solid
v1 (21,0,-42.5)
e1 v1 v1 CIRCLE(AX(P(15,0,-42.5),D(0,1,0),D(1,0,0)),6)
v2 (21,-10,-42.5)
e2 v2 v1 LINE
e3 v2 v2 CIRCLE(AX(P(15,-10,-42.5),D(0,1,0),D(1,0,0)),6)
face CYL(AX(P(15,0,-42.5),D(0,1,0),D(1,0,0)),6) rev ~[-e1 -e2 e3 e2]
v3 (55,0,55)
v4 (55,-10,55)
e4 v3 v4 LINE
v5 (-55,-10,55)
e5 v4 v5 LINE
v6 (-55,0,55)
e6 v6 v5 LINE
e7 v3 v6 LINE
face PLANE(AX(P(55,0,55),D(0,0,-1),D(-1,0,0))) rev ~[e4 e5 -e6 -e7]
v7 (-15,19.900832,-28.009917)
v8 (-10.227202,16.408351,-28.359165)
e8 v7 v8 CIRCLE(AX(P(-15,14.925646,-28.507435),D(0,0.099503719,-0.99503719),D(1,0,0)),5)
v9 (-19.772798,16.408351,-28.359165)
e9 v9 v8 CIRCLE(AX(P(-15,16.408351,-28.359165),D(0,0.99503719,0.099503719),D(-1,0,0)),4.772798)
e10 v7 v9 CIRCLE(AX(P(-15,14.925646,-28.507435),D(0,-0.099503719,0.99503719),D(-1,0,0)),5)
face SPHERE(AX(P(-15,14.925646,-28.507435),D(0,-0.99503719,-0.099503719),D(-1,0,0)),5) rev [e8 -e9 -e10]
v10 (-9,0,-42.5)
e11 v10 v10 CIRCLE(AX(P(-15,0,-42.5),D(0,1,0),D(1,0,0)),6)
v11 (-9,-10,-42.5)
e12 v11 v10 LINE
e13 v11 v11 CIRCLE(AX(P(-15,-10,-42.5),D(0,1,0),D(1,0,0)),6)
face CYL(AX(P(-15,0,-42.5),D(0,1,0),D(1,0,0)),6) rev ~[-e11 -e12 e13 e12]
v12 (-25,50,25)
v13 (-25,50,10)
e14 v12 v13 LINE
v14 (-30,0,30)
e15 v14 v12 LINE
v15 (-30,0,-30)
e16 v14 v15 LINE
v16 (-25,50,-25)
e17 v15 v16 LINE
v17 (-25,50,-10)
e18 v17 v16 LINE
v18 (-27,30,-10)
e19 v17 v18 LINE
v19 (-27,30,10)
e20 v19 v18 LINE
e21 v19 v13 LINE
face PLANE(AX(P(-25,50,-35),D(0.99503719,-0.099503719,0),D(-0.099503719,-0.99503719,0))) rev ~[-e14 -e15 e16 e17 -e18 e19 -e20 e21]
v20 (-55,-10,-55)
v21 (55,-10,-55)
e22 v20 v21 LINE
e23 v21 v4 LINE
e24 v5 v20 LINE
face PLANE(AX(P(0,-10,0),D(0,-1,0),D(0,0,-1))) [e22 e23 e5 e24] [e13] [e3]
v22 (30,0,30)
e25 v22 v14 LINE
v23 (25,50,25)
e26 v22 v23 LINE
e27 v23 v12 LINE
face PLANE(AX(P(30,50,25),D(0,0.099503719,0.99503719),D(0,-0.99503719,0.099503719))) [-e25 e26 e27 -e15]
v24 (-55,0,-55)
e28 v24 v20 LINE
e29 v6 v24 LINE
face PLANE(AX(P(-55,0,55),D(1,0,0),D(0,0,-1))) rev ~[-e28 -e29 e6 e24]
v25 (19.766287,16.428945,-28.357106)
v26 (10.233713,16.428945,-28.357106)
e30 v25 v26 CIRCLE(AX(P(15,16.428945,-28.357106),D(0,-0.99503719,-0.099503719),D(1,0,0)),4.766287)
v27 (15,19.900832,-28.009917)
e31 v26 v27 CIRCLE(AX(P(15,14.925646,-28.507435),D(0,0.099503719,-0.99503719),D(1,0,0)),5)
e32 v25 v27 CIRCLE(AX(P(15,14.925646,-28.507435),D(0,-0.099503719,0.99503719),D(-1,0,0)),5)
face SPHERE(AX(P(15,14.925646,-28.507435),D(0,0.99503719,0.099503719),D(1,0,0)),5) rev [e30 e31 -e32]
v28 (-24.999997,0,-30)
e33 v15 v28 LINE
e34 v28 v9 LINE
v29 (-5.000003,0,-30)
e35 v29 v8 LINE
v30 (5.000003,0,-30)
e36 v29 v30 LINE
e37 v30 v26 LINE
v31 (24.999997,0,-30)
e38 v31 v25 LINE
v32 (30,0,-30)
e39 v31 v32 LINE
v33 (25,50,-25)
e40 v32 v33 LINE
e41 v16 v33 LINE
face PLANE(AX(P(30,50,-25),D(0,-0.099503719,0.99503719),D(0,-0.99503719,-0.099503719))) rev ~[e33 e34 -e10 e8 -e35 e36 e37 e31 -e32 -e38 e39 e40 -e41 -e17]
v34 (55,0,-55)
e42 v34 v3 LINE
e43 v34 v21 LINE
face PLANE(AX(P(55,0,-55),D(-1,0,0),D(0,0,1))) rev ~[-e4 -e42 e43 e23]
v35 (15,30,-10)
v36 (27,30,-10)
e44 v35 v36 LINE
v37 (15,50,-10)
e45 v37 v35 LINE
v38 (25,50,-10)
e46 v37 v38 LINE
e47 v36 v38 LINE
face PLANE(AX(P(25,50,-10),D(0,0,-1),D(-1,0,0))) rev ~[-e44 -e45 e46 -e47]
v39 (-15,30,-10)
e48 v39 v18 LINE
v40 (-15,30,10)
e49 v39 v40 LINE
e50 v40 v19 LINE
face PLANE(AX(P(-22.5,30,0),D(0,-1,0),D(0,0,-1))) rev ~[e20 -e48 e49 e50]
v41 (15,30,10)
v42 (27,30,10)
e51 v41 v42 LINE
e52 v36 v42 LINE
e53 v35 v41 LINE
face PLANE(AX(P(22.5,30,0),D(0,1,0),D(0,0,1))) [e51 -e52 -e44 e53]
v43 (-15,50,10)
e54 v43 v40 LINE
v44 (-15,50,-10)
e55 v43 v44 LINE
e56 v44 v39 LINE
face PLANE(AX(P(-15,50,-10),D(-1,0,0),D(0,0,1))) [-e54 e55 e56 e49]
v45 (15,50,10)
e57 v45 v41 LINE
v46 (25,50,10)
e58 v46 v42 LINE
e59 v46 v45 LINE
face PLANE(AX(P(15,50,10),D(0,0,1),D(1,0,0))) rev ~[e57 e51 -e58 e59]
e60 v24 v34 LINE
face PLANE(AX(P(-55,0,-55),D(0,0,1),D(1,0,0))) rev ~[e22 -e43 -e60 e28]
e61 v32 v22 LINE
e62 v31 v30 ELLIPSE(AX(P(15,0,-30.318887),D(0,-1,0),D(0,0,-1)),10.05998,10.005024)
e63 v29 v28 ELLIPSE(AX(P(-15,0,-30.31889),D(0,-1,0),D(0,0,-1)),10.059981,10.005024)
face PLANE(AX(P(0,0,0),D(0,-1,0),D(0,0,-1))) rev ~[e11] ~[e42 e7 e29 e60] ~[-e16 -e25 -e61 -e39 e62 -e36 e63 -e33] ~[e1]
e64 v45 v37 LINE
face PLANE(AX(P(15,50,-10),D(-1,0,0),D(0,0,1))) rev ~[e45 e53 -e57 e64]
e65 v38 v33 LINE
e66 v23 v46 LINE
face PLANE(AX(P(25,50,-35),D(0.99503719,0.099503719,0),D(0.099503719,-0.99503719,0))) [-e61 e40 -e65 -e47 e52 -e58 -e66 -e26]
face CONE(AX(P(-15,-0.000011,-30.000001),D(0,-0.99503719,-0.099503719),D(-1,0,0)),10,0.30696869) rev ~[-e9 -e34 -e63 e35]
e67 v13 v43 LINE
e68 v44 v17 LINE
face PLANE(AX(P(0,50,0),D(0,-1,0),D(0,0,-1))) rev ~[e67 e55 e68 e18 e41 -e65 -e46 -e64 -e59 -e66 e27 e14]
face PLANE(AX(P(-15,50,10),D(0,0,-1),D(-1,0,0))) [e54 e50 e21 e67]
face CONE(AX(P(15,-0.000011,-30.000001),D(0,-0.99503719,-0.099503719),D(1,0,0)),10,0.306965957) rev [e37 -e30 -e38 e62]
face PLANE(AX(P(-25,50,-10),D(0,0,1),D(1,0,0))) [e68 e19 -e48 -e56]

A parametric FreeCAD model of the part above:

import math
import FreeCAD as App
import Part
import Sketcher
Q = App.Units.Quantity


def add_polygon(sketch, points):
    """Adds a closed chain of lines whose ends are joined by coincident constraints."""
    first, n = sketch.GeometryCount, len(points)
    for a, b in zip(points, points[1:] + points[:1]):
        sketch.addGeometry(Part.LineSegment(App.Vector(*a, 0), App.Vector(*b, 0)), False)
    for i in range(n):
        sketch.addConstraint(Sketcher.Constraint("Coincident", first + i, 2, first + (i + 1) % n, 1))

doc = App.newDocument("Part")
params = doc.addObject("Spreadsheet::Sheet", "Params")
for row, (alias, value) in enumerate([
    ("sketch1_width", "60 mm"),
    ("pad1_length", "50 mm"),
    ("sketch2_width", "50 mm"),
    ("sketch2_height", "5 mm"),
    ("sketch3_width", "50 mm"),
    ("sketch3_height", "5 mm"),
    ("sketch4_width", "5 mm"),
    ("sketch4_height", "50 mm"),
    ("sketch5_width", "5 mm"),
    ("sketch5_height", "50 mm"),
    ("sketch6_width", "15 mm"),
    ("sketch6_height", "20 mm"),
    ("pocket5_length", "20 mm"),
    ("pocket5_length2", "1 mm"),
    ("sketch7_width", "15 mm"),
    ("sketch7_height", "20 mm"),
    ("pocket6_length", "20 mm"),
    ("pocket6_length2", "1 mm"),
    ("sketch8_radius", "5 mm"),
    ("sketch8_width", "10 mm"),
    ("sketch8_height", "20 mm"),
    ("groove_angle", "180 deg"),
    ("sketch9_radius", "5 mm"),
    ("sketch9_width", "10 mm"),
    ("sketch9_height", "20 mm"),
    ("groove2_angle", "180 deg"),
    ("sketch10_width", "110 mm"),
    ("pad2_length", "10 mm"),
    ("sketch11_diameter", "12 mm"),
], start=1):
    params.set(f"A{row}", alias)
    params.set(f"B{row}", "=" + value)
    params.setAlias(f"B{row}", alias)

body = doc.addObject("PartDesign::Body", "Body")

sketch1 = body.newObject("Sketcher::SketchObject", "Sketch")
sketch1.AttachmentSupport = (doc.getObject("XZ_Plane"), [""])
sketch1.MapMode = "FlatFace"
add_polygon(sketch1, [(30, -30), (30, 30), (-30, 30), (-30, -30)])
sketch1.addConstraint(Sketcher.Constraint("Vertical", 0))
sketch1.addConstraint(Sketcher.Constraint("Horizontal", 1))
sketch1.addConstraint(Sketcher.Constraint("Vertical", 2))
sketch1.addConstraint(Sketcher.Constraint("Horizontal", 3))
sketch1.addConstraint(Sketcher.Constraint("Symmetric", 0, 2, 2, 2, -1, 1))
sketch1.addConstraint(Sketcher.Constraint("Equal", 3, 0))
sketch1.addConstraint(Sketcher.Constraint("DistanceX", 1, 2, 1, 1, Q("60 mm")))
sketch1.setExpression("Constraints[10]", "Params.sketch1_width")
pad1 = body.newObject("PartDesign::Pad", "Pad")
pad1.Profile = sketch1
pad1.setExpression("Length", "Params.pad1_length")
pad1.Reversed = True

sketch2 = body.newObject("Sketcher::SketchObject", "Sketch001")
sketch2.AttachmentSupport = (doc.getObject("YZ_Plane"), [""])
sketch2.MapMode = "FlatFace"
sketch2.AttachmentOffset = App.Placement(App.Vector(0, 0, 30), App.Rotation())
add_polygon(sketch2, [(0, -30), (50, -30), (50, -25)])
sketch2.addConstraint(Sketcher.Constraint("Horizontal", 0))
sketch2.addConstraint(Sketcher.Constraint("Vertical", 1))
sketch2.addConstraint(Sketcher.Constraint("PointOnObject", 2, 2, -2))
sketch2.addConstraint(Sketcher.Constraint("DistanceX", 0, 1, 0, 2, Q("50 mm")))
sketch2.addConstraint(Sketcher.Constraint("DistanceY", 1, 1, 1, 2, Q("5 mm")))
sketch2.addConstraint(Sketcher.Constraint("DistanceY", 0, 2, -1, 1, Q("30 mm")))
sketch2.setExpression("Constraints[6]", "Params.sketch2_width")
sketch2.setExpression("Constraints[7]", "Params.sketch2_height")
pocket1 = body.newObject("PartDesign::Pocket", "Pocket")
pocket1.Profile = sketch2
pocket1.Type = "ThroughAll"
pocket1.Midplane = True

sketch3 = body.newObject("Sketcher::SketchObject", "Sketch002")
sketch3.AttachmentSupport = (doc.getObject("YZ_Plane"), [""])
sketch3.MapMode = "FlatFace"
sketch3.AttachmentOffset = App.Placement(App.Vector(0, 0, 30), App.Rotation())
add_polygon(sketch3, [(50, 25), (50, 30), (0, 30)])
sketch3.addConstraint(Sketcher.Constraint("Vertical", 0))
sketch3.addConstraint(Sketcher.Constraint("Horizontal", 1))
sketch3.addConstraint(Sketcher.Constraint("PointOnObject", 1, 2, -2))
sketch3.addConstraint(Sketcher.Constraint("DistanceX", 1, 2, 1, 1, Q("50 mm")))
sketch3.addConstraint(Sketcher.Constraint("DistanceY", 0, 1, 0, 2, Q("5 mm")))
sketch3.addConstraint(Sketcher.Constraint("DistanceY", -1, 1, 0, 2, Q("30 mm")))
sketch3.setExpression("Constraints[6]", "Params.sketch3_width")
sketch3.setExpression("Constraints[7]", "Params.sketch3_height")
pocket2 = body.newObject("PartDesign::Pocket", "Pocket001")
pocket2.Profile = sketch3
pocket2.Type = "ThroughAll"
pocket2.Midplane = True

sketch4 = body.newObject("Sketcher::SketchObject", "Sketch003")
sketch4.AttachmentSupport = (doc.getObject("XY_Plane"), [""])
sketch4.MapMode = "FlatFace"
sketch4.AttachmentOffset = App.Placement(App.Vector(0, 0, -35), App.Rotation())
add_polygon(sketch4, [(-30, 0), (-30, 50), (-25, 50)])
sketch4.addConstraint(Sketcher.Constraint("Vertical", 0))
sketch4.addConstraint(Sketcher.Constraint("Horizontal", 1))
sketch4.addConstraint(Sketcher.Constraint("PointOnObject", 2, 2, -1))
sketch4.addConstraint(Sketcher.Constraint("DistanceX", 1, 1, 1, 2, Q("5 mm")))
sketch4.addConstraint(Sketcher.Constraint("DistanceY", 0, 1, 0, 2, Q("50 mm")))
sketch4.addConstraint(Sketcher.Constraint("DistanceX", 0, 2, -1, 1, Q("30 mm")))
sketch4.setExpression("Constraints[6]", "Params.sketch4_width")
sketch4.setExpression("Constraints[7]", "Params.sketch4_height")
pocket3 = body.newObject("PartDesign::Pocket", "Pocket002")
pocket3.Profile = sketch4
pocket3.Type = "ThroughAll"
pocket3.Midplane = True

sketch5 = body.newObject("Sketcher::SketchObject", "Sketch004")
sketch5.AttachmentSupport = (doc.getObject("XY_Plane"), [""])
sketch5.MapMode = "FlatFace"
sketch5.AttachmentOffset = App.Placement(App.Vector(0, 0, -35), App.Rotation())
add_polygon(sketch5, [(30, 50), (30, 0), (25, 50)])
sketch5.addConstraint(Sketcher.Constraint("Vertical", 0))
sketch5.addConstraint(Sketcher.Constraint("Horizontal", 2))
sketch5.addConstraint(Sketcher.Constraint("PointOnObject", 0, 2, -1))
sketch5.addConstraint(Sketcher.Constraint("DistanceX", 2, 1, 2, 2, Q("5 mm")))
sketch5.addConstraint(Sketcher.Constraint("DistanceY", 0, 2, 0, 1, Q("50 mm")))
sketch5.addConstraint(Sketcher.Constraint("DistanceX", -1, 1, 0, 2, Q("30 mm")))
sketch5.setExpression("Constraints[6]", "Params.sketch5_width")
sketch5.setExpression("Constraints[7]", "Params.sketch5_height")
pocket4 = body.newObject("PartDesign::Pocket", "Pocket003")
pocket4.Profile = sketch5
pocket4.Type = "ThroughAll"
pocket4.Midplane = True

sketch6 = body.newObject("Sketcher::SketchObject", "Sketch005")
sketch6.AttachmentSupport = (doc.getObject("XZ_Plane"), [""])
sketch6.MapMode = "FlatFace"
sketch6.AttachmentOffset = App.Placement(App.Vector(0, 0, -50), App.Rotation())
add_polygon(sketch6, [(15, -10), (15, 10), (30, 10), (30, -10)])
sketch6.addConstraint(Sketcher.Constraint("Vertical", 0))
sketch6.addConstraint(Sketcher.Constraint("Horizontal", 1))
sketch6.addConstraint(Sketcher.Constraint("Vertical", 2))
sketch6.addConstraint(Sketcher.Constraint("Horizontal", 3))
sketch6.addConstraint(Sketcher.Constraint("DistanceX", 1, 1, 1, 2, Q("15 mm")))
sketch6.addConstraint(Sketcher.Constraint("DistanceY", 0, 1, 0, 2, Q("20 mm")))
sketch6.addConstraint(Sketcher.Constraint("DistanceX", -1, 1, 0, 2, Q("15 mm")))
sketch6.addConstraint(Sketcher.Constraint("DistanceY", -1, 1, 0, 2, Q("10 mm")))
sketch6.setExpression("Constraints[8]", "Params.sketch6_width")
sketch6.setExpression("Constraints[9]", "Params.sketch6_height")
pocket5 = body.newObject("PartDesign::Pocket", "Pocket004")
pocket5.Profile = sketch6
pocket5.Type = "TwoLengths"
pocket5.setExpression("Length", "Params.pocket5_length")
pocket5.setExpression("Length2", "Params.pocket5_length2")
pocket5.Reversed = True

sketch7 = body.newObject("Sketcher::SketchObject", "Sketch006")
sketch7.AttachmentSupport = (doc.getObject("XZ_Plane"), [""])
sketch7.MapMode = "FlatFace"
sketch7.AttachmentOffset = App.Placement(App.Vector(0, 0, -50), App.Rotation())
add_polygon(sketch7, [(-15, -10), (-30, -10), (-30, 10), (-15, 10)])
sketch7.addConstraint(Sketcher.Constraint("Horizontal", 0))
sketch7.addConstraint(Sketcher.Constraint("Vertical", 1))
sketch7.addConstraint(Sketcher.Constraint("Horizontal", 2))
sketch7.addConstraint(Sketcher.Constraint("Vertical", 3))
sketch7.addConstraint(Sketcher.Constraint("DistanceX", 0, 2, 0, 1, Q("15 mm")))
sketch7.addConstraint(Sketcher.Constraint("DistanceY", 1, 1, 1, 2, Q("20 mm")))
sketch7.addConstraint(Sketcher.Constraint("DistanceX", 0, 2, -1, 1, Q("30 mm")))
sketch7.addConstraint(Sketcher.Constraint("DistanceY", 0, 2, -1, 1, Q("10 mm")))
sketch7.setExpression("Constraints[8]", "Params.sketch7_width")
sketch7.setExpression("Constraints[9]", "Params.sketch7_height")
pocket6 = body.newObject("PartDesign::Pocket", "Pocket005")
pocket6.Profile = sketch7
pocket6.Type = "TwoLengths"
pocket6.setExpression("Length", "Params.pocket6_length")
pocket6.setExpression("Length2", "Params.pocket6_length2")
pocket6.Reversed = True

sketch8 = body.newObject("Sketcher::SketchObject", "Sketch007")
sketch8.Placement = App.Placement(App.Vector(0, 25, -27.5), App.Rotation(App.Vector(-1, 0, 0), App.Vector(0, 0.99503719, 0.099503719), App.Vector(0, 0.099503719, -0.99503719), "ZXY"))
sketch8.addGeometry(Part.LineSegment(App.Vector(-25, -25.1247, 0), App.Vector(-15, -25.1247, 0)), False)
sketch8.addGeometry(Part.LineSegment(App.Vector(-15, -25.1247, 0), App.Vector(-15, -5.1247, 0)), False)
sketch8.addGeometry(Part.ArcOfCircle(Part.Circle(App.Vector(-15, -10.1246, 0), App.Vector(0, 0, 1), 4.999983), math.radians(90), math.radians(162.412664)), False)
sketch8.addGeometry(Part.LineSegment(App.Vector(-19.7663, -8.6138, 0), App.Vector(-25, -25.1247, 0)), False)
sketch8.addGeometry(Part.LineSegment(App.Vector(-15, -5.1247, 0), App.Vector(-15, -25.1247, 0)), True)
sketch8.addConstraint(Sketcher.Constraint("Coincident", 0, 2, 1, 1))
sketch8.addConstraint(Sketcher.Constraint("Coincident", 1, 2, 2, 1))
sketch8.addConstraint(Sketcher.Constraint("Tangent", 2, 2, 3, 1))
sketch8.addConstraint(Sketcher.Constraint("Coincident", 3, 2, 0, 1))
sketch8.addConstraint(Sketcher.Constraint("Horizontal", 0))
sketch8.addConstraint(Sketcher.Constraint("Vertical", 1))
sketch8.addConstraint(Sketcher.Constraint("Vertical", 4))
sketch8.addConstraint(Sketcher.Constraint("Coincident", 4, 1, 1, 2))
sketch8.addConstraint(Sketcher.Constraint("Horizontal", 3, 2, 4, 2))
sketch8.addConstraint(Sketcher.Constraint("Vertical", 2, 3, 0, 2))
sketch8.addConstraint(Sketcher.Constraint("Radius", 2, Q("5 mm")))
sketch8.addConstraint(Sketcher.Constraint("DistanceX", 0, 1, 0, 2, Q("10 mm")))
sketch8.addConstraint(Sketcher.Constraint("DistanceY", 1, 1, 1, 2, Q("20 mm")))
sketch8.addConstraint(Sketcher.Constraint("DistanceX", 2, 3, -1, 1, Q("15 mm")))
sketch8.addConstraint(Sketcher.Constraint("DistanceY", 2, 3, -1, 1, Q("10.1246 mm")))
sketch8.setExpression("Constraints[10]", "Params.sketch8_radius")
sketch8.setExpression("Constraints[11]", "Params.sketch8_width")
sketch8.setExpression("Constraints[12]", "Params.sketch8_height")
groove = body.newObject("PartDesign::Groove", "Groove")
groove.Profile = sketch8
groove.ReferenceAxis = (sketch8, ["Axis0"])
groove.setExpression("Angle", "Params.groove_angle")

sketch9 = body.newObject("Sketcher::SketchObject", "Sketch008")
sketch9.Placement = App.Placement(App.Vector(0, 25, -27.5), App.Rotation(App.Vector(-1, 0, 0), App.Vector(0, 0.99503719, 0.099503719), App.Vector(0, 0.099503719, -0.99503719), "ZXY"))
sketch9.addGeometry(Part.LineSegment(App.Vector(15, -25.1247, 0), App.Vector(25, -25.1247, 0)), False)
sketch9.addGeometry(Part.LineSegment(App.Vector(25, -25.1247, 0), App.Vector(19.7728, -8.6345, 0)), False)
sketch9.addGeometry(Part.ArcOfCircle(Part.Circle(App.Vector(15, -10.1246, 0), App.Vector(0, 0, 1), 5), math.radians(17.338712), math.radians(90)), False)
sketch9.addGeometry(Part.LineSegment(App.Vector(15, -5.1247, 0), App.Vector(15, -25.1247, 0)), False)
sketch9.addGeometry(Part.LineSegment(App.Vector(15, -25.1247, 0), App.Vector(15, -5.1247, 0)), True)
sketch9.addConstraint(Sketcher.Constraint("Coincident", 0, 2, 1, 1))
sketch9.addConstraint(Sketcher.Constraint("Coincident", 1, 2, 2, 1))
sketch9.addConstraint(Sketcher.Constraint("Coincident", 2, 2, 3, 1))
sketch9.addConstraint(Sketcher.Constraint("Coincident", 3, 2, 0, 1))
sketch9.addConstraint(Sketcher.Constraint("Horizontal", 0))
sketch9.addConstraint(Sketcher.Constraint("Vertical", 3))
sketch9.addConstraint(Sketcher.Constraint("Vertical", 4))
sketch9.addConstraint(Sketcher.Constraint("Coincident", 4, 1, 3, 2))
sketch9.addConstraint(Sketcher.Constraint("Equal", 3, 4))
sketch9.addConstraint(Sketcher.Constraint("Radius", 2, Q("5 mm")))
sketch9.addConstraint(Sketcher.Constraint("DistanceX", 0, 1, 0, 2, Q("10 mm")))
sketch9.addConstraint(Sketcher.Constraint("DistanceY", 3, 2, 3, 1, Q("20 mm")))
sketch9.addConstraint(Sketcher.Constraint("DistanceX", -1, 1, 2, 3, Q("15 mm")))
sketch9.addConstraint(Sketcher.Constraint("DistanceX", -1, 1, 0, 2, Q("25 mm")))
sketch9.addConstraint(Sketcher.Constraint("DistanceY", 2, 3, 1, 2, Q("1.49 mm")))
sketch9.addConstraint(Sketcher.Constraint("DistanceY", 2, 3, -1, 1, Q("10.1246 mm")))
sketch9.setExpression("Constraints[9]", "Params.sketch9_radius")
sketch9.setExpression("Constraints[10]", "Params.sketch9_width")
sketch9.setExpression("Constraints[11]", "Params.sketch9_height")
groove2 = body.newObject("PartDesign::Groove", "Groove001")
groove2.Profile = sketch9
groove2.ReferenceAxis = (sketch9, ["Axis0"])
groove2.setExpression("Angle", "Params.groove2_angle")

sketch10 = body.newObject("Sketcher::SketchObject", "Sketch009")
sketch10.AttachmentSupport = (doc.getObject("XZ_Plane"), [""])
sketch10.MapMode = "FlatFace"
add_polygon(sketch10, [(55, 55), (-55, 55), (-55, -55), (55, -55)])
sketch10.addConstraint(Sketcher.Constraint("Horizontal", 0))
sketch10.addConstraint(Sketcher.Constraint("Vertical", 1))
sketch10.addConstraint(Sketcher.Constraint("Horizontal", 2))
sketch10.addConstraint(Sketcher.Constraint("Vertical", 3))
sketch10.addConstraint(Sketcher.Constraint("Symmetric", 0, 2, 2, 2, -1, 1))
sketch10.addConstraint(Sketcher.Constraint("Equal", 2, 1))
sketch10.addConstraint(Sketcher.Constraint("DistanceX", 0, 2, 0, 1, Q("110 mm")))
sketch10.setExpression("Constraints[10]", "Params.sketch10_width")
pad2 = body.newObject("PartDesign::Pad", "Pad001")
pad2.Profile = sketch10
pad2.setExpression("Length", "Params.pad2_length")

sketch11 = body.newObject("Sketcher::SketchObject", "Sketch010")
sketch11.AttachmentSupport = (doc.getObject("XZ_Plane"), [""])
sketch11.MapMode = "FlatFace"
sketch11.addGeometry(Part.Circle(App.Vector(15, -42.5, 0), App.Vector(0, 0, 1), 6), False)
sketch11.addGeometry(Part.Circle(App.Vector(-15, -42.5, 0), App.Vector(0, 0, 1), 6), False)
sketch11.addConstraint(Sketcher.Constraint("Equal", 0, 1))
sketch11.addConstraint(Sketcher.Constraint("Symmetric", 0, 3, 1, 3, -2))
sketch11.addConstraint(Sketcher.Constraint("Diameter", 0, Q("12 mm")))
sketch11.addConstraint(Sketcher.Constraint("DistanceX", -1, 1, 0, 3, Q("15 mm")))
sketch11.addConstraint(Sketcher.Constraint("DistanceY", 0, 3, -1, 1, Q("42.5 mm")))
sketch11.setExpression("Constraints[2]", "Params.sketch11_diameter")
pocket7 = body.newObject("PartDesign::Pocket", "Pocket006")
pocket7.Profile = sketch11
pocket7.Type = "ThroughAll"
pocket7.Midplane = True

doc.recompute()
